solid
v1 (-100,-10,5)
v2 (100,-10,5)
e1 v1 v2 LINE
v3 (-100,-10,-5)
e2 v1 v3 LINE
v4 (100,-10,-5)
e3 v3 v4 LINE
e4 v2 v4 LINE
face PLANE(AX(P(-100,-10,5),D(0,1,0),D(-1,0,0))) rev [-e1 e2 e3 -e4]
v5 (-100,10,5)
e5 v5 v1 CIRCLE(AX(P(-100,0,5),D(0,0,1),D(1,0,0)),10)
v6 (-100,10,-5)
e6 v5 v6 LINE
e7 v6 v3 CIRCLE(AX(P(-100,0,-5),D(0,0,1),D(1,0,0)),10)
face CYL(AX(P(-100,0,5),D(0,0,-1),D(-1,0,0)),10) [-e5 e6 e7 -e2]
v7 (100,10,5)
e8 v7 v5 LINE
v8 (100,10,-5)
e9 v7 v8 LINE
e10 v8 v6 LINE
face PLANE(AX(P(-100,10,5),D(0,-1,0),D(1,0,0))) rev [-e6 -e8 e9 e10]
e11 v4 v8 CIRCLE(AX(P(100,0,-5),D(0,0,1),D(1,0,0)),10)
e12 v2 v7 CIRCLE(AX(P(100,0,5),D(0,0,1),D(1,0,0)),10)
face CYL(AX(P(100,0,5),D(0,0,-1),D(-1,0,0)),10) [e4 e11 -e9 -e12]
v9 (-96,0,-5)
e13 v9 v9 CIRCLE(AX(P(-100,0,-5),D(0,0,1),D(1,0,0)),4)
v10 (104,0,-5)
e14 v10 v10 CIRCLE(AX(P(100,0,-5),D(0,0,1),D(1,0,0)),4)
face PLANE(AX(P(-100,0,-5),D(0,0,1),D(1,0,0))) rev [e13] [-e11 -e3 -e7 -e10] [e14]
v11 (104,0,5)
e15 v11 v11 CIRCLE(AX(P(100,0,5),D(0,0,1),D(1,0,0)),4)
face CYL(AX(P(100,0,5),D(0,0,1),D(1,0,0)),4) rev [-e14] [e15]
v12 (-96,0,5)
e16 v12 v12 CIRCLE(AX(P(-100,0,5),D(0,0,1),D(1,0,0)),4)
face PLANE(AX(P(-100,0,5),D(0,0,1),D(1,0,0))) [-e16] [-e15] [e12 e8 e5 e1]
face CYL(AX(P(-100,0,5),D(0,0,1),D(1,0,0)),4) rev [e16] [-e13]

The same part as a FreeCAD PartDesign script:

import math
import FreeCAD as App
import Part
import Sketcher
from FreeCAD import Vector

doc = App.newDocument("Part")
body = doc.addObject("PartDesign::Body", "Body")

# Sketch on XY plane
sketch1 = doc.addObject("Sketcher::SketchObject", "Sketch")
body.addObject(sketch1)
sketch1.AttachmentSupport = (doc.XY_Plane, [""])
sketch1.MapMode = "FlatFace"
sketch1.addGeometry([
    Part.LineSegment(Vector(100, 10, 0), Vector(-100, 10, 0)),
    Part.ArcOfCircle(Part.Circle(Vector(-100, 0, 0), Vector(0, 0, 1), 10), math.radians(90), math.radians(270)),
    Part.LineSegment(Vector(-100, -10, 0), Vector(100, -10, 0)),
    Part.ArcOfCircle(Part.Circle(Vector(100, 0, 0), Vector(0, 0, 1), 10), math.radians(-90), math.radians(90)),
], False)
sketch1.addConstraint([
    Sketcher.Constraint("Tangent", 0, 2, 1, 1),
    Sketcher.Constraint("Tangent", 1, 2, 2, 1),
    Sketcher.Constraint("Tangent", 2, 2, 3, 1),
    Sketcher.Constraint("Tangent", 3, 2, 0, 1),
    Sketcher.Constraint("Horizontal", 0),
    Sketcher.Constraint("Horizontal", 2),
    Sketcher.Constraint("Symmetric", 1, 3, 3, 3, -1, 1),
    Sketcher.Constraint("Radius", 1, 10.0),
    Sketcher.Constraint("DistanceX", 0, 2, 0, 1, 200.0),
])
pad1 = doc.addObject("PartDesign::Pad", "Pad")
body.addObject(pad1)
pad1.Profile = sketch1
pad1.Length = 10
pad1.Midplane = True

# Sketch on XY plane
sketch2 = doc.addObject("Sketcher::SketchObject", "Sketch001")
body.addObject(sketch2)
sketch2.AttachmentSupport = (doc.XY_Plane, [""])
sketch2.MapMode = "FlatFace"
sketch2.AttachmentOffset = App.Placement(Vector(0, 0, 5), App.Rotation())
sketch2.addGeometry([
    Part.Circle(Vector(-100, 0, 0), Vector(0, 0, 1), 4),
    Part.Circle(Vector(100, 0, 0), Vector(0, 0, 1), 4),
], False)
sketch2.addConstraint([
    Sketcher.Constraint("Equal", 0, 1),
    Sketcher.Constraint("Symmetric", 0, 3, 1, 3, -1, 1),
    Sketcher.Constraint("PointOnObject", 0, 3, -1),
    Sketcher.Constraint("Diameter", 0, 8.0),
    Sketcher.Constraint("DistanceX", 0, 3, -1, 1, 100.0),
])
doc.recompute()
hole = doc.addObject("PartDesign::Hole", "Hole")
body.addObject(hole)
hole.Profile = sketch2
hole.ThreadType = "None"
hole.Diameter = 8
hole.DepthType = "ThroughAll"

doc.recompute()
